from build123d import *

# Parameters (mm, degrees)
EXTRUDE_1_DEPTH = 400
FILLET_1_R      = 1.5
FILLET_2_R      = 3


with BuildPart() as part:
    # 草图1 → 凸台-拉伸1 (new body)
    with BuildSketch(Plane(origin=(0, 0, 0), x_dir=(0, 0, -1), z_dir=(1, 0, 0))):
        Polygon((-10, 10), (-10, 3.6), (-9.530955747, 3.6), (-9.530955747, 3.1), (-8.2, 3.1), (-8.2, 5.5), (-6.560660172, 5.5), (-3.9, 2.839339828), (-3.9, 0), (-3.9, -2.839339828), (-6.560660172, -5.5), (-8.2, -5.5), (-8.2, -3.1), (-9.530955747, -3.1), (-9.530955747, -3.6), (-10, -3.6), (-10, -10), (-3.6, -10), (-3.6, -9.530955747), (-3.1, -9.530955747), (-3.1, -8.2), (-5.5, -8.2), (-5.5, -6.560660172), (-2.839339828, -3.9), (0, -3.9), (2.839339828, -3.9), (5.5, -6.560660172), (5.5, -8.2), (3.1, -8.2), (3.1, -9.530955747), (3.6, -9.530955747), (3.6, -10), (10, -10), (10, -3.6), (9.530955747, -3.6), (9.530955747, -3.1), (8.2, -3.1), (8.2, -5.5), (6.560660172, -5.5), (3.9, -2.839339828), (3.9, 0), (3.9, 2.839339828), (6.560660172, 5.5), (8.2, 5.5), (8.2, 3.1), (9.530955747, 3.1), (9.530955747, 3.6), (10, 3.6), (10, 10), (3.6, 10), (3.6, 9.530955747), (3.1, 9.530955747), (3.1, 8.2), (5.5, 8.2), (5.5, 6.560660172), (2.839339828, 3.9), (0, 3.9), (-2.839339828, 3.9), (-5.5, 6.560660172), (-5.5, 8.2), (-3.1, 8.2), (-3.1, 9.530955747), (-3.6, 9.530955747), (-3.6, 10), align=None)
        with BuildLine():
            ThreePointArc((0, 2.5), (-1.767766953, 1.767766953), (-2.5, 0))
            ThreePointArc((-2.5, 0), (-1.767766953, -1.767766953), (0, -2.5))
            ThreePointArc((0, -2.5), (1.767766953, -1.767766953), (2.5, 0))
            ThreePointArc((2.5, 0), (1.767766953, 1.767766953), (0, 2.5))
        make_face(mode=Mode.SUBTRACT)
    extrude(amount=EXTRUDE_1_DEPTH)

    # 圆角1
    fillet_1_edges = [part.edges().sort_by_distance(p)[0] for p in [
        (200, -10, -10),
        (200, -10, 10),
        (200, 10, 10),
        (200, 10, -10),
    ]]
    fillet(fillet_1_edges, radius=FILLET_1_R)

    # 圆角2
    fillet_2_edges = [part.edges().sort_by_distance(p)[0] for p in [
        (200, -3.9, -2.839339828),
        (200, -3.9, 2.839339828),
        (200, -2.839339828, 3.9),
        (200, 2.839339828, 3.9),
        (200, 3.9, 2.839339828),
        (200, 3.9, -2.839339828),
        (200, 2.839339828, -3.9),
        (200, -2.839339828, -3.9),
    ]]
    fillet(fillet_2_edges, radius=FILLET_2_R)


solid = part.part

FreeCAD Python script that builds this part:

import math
import FreeCAD as App
import Part
import Sketcher

V = App.Vector


def edges_at(feature, points):
    """Names of the edges that pass closest to the given points."""
    edges = feature.Shape.Edges
    near = lambda p: min(range(len(edges)), key=lambda i: edges[i].distToShape(Part.Vertex(*p))[0])
    return sorted({f"Edge{near(p) + 1}" for p in points})

doc = App.newDocument("Part")
body = doc.addObject("PartDesign::Body", "Body")

# Sketch on YZ plane
sketch1 = body.newObject("Sketcher::SketchObject", "Sketch")
sketch1.AttachmentSupport = (doc.getObject("YZ_Plane"), [""])
sketch1.MapMode = "FlatFace"
sketch1.addGeometry(Part.LineSegment(V(10, 10, 0), V(3.6, 10, 0)), False)
sketch1.addGeometry(Part.LineSegment(V(3.6, 10, 0), V(3.6, 9.530956, 0)), False)
sketch1.addGeometry(Part.LineSegment(V(3.6, 9.530956, 0), V(3.1, 9.530956, 0)), False)
sketch1.addGeometry(Part.LineSegment(V(3.1, 9.530956, 0), V(3.1, 8.2, 0)), False)
sketch1.addGeometry(Part.LineSegment(V(3.1, 8.2, 0), V(5.5, 8.2, 0)), False)
sketch1.addGeometry(Part.LineSegment(V(5.5, 8.2, 0), V(5.5, 6.56066, 0)), False)
sketch1.addGeometry(Part.LineSegment(V(5.5, 6.56066, 0), V(2.83934, 3.9, 0)), False)
sketch1.addGeometry(Part.LineSegment(V(2.83934, 3.9, 0), V(-2.83934, 3.9, 0)), False)
sketch1.addGeometry(Part.LineSegment(V(-2.83934, 3.9, 0), V(-5.5, 6.56066, 0)), False)
sketch1.addGeometry(Part.LineSegment(V(-5.5, 6.56066, 0), V(-5.5, 8.2, 0)), False)
sketch1.addGeometry(Part.LineSegment(V(-5.5, 8.2, 0), V(-3.1, 8.2, 0)), False)
sketch1.addGeometry(Part.LineSegment(V(-3.1, 8.2, 0), V(-3.1, 9.530956, 0)), False)
sketch1.addGeometry(Part.LineSegment(V(-3.1, 9.530956, 0), V(-3.6, 9.530956, 0)), False)
sketch1.addGeometry(Part.LineSegment(V(-3.6, 9.530956, 0), V(-3.6, 10, 0)), False)
sketch1.addGeometry(Part.LineSegment(V(-3.6, 10, 0), V(-10, 10, 0)), False)
sketch1.addGeometry(Part.LineSegment(V(-10, 10, 0), V(-10, 3.6, 0)), False)
sketch1.addGeometry(Part.LineSegment(V(-10, 3.6, 0), V(-9.530956, 3.6, 0)), False)
sketch1.addGeometry(Part.LineSegment(V(-9.530956, 3.6, 0), V(-9.530956, 3.1, 0)), False)
sketch1.addGeometry(Part.LineSegment(V(-9.530956, 3.1, 0), V(-8.2, 3.1, 0)), False)
sketch1.addGeometry(Part.LineSegment(V(-8.2, 3.1, 0), V(-8.2, 5.5, 0)), False)
sketch1.addGeometry(Part.LineSegment(V(-8.2, 5.5, 0), V(-6.56066, 5.5, 0)), False)
sketch1.addGeometry(Part.LineSegment(V(-6.56066, 5.5, 0), V(-3.9, 2.83934, 0)), False)
sketch1.addGeometry(Part.LineSegment(V(-3.9, 2.83934, 0), V(-3.9, -2.83934, 0)), False)
sketch1.addGeometry(Part.LineSegment(V(-3.9, -2.83934, 0), V(-6.56066, -5.5, 0)), False)
sketch1.addGeometry(Part.LineSegment(V(-6.56066, -5.5, 0), V(-8.2, -5.5, 0)), False)
sketch1.addGeometry(Part.LineSegment(V(-8.2, -5.5, 0), V(-8.2, -3.1, 0)), False)
sketch1.addGeometry(Part.LineSegment(V(-8.2, -3.1, 0), V(-9.530956, -3.1, 0)), False)
sketch1.addGeometry(Part.LineSegment(V(-9.530956, -3.1, 0), V(-9.530956, -3.6, 0)), False)
sketch1.addGeometry(Part.LineSegment(V(-9.530956, -3.6, 0), V(-10, -3.6, 0)), False)
sketch1.addGeometry(Part.LineSegment(V(-10, -3.6, 0), V(-10, -10, 0)), False)
sketch1.addGeometry(Part.LineSegment(V(-10, -10, 0), V(-3.6, -10, 0)), False)
sketch1.addGeometry(Part.LineSegment(V(-3.6, -10, 0), V(-3.6, -9.530956, 0)), False)
sketch1.addGeometry(Part.LineSegment(V(-3.6, -9.530956, 0), V(-3.1, -9.530956, 0)), False)
sketch1.addGeometry(Part.LineSegment(V(-3.1, -9.530956, 0), V(-3.1, -8.2, 0)), False)
sketch1.addGeometry(Part.LineSegment(V(-3.1, -8.2, 0), V(-5.5, -8.2, 0)), False)
sketch1.addGeometry(Part.LineSegment(V(-5.5, -8.2, 0), V(-5.5, -6.56066, 0)), False)
sketch1.addGeometry(Part.LineSegment(V(-5.5, -6.56066, 0), V(-2.83934, -3.9, 0)), False)
sketch1.addGeometry(Part.LineSegment(V(-2.83934, -3.9, 0), V(2.83934, -3.9, 0)), False)
sketch1.addGeometry(Part.LineSegment(V(2.83934, -3.9, 0), V(5.5, -6.56066, 0)), False)
sketch1.addGeometry(Part.LineSegment(V(5.5, -6.56066, 0), V(5.5, -8.2, 0)), False)
sketch1.addGeometry(Part.LineSegment(V(5.5, -8.2, 0), V(3.1, -8.2, 0)), False)
sketch1.addGeometry(Part.LineSegment(V(3.1, -8.2, 0), V(3.1, -9.530956, 0)), False)
sketch1.addGeometry(Part.LineSegment(V(3.1, -9.530956, 0), V(3.6, -9.530956, 0)), False)
sketch1.addGeometry(Part.LineSegment(V(3.6, -9.530956, 0), V(3.6, -10, 0)), False)
sketch1.addGeometry(Part.LineSegment(V(3.6, -10, 0), V(10, -10, 0)), False)
sketch1.addGeometry(Part.LineSegment(V(10, -10, 0), V(10, -3.6, 0)), False)
sketch1.addGeometry(Part.LineSegment(V(10, -3.6, 0), V(9.530956, -3.6, 0)), False)
sketch1.addGeometry(Part.LineSegment(V(9.530956, -3.6, 0), V(9.530956, -3.1, 0)), False)
sketch1.addGeometry(Part.LineSegment(V(9.530956, -3.1, 0), V(8.2, -3.1, 0)), False)
sketch1.addGeometry(Part.LineSegment(V(8.2, -3.1, 0), V(8.2, -5.5, 0)), False)
sketch1.addGeometry(Part.LineSegment(V(8.2, -5.5, 0), V(6.56066, -5.5, 0)), False)
sketch1.addGeometry(Part.LineSegment(V(6.56066, -5.5, 0), V(3.9, -2.83934, 0)), False)
sketch1.addGeometry(Part.LineSegment(V(3.9, -2.83934, 0), V(3.9, 2.83934, 0)), False)
sketch1.addGeometry(Part.LineSegment(V(3.9, 2.83934, 0), V(6.56066, 5.5, 0)), False)
sketch1.addGeometry(Part.LineSegment(V(6.56066, 5.5, 0), V(8.2, 5.5, 0)), False)
sketch1.addGeometry(Part.LineSegment(V(8.2, 5.5, 0), V(8.2, 3.1, 0)), False)
sketch1.addGeometry(Part.LineSegment(V(8.2, 3.1, 0), V(9.530956, 3.1, 0)), False)
sketch1.addGeometry(Part.LineSegment(V(9.530956, 3.1, 0), V(9.530956, 3.6, 0)), False)
sketch1.addGeometry(Part.LineSegment(V(9.530956, 3.6, 0), V(10, 3.6, 0)), False)
sketch1.addGeometry(Part.LineSegment(V(10, 3.6, 0), V(10, 10, 0)), False)
sketch1.addGeometry(Part.ArcOfCircle(Part.Circle(V(0, 0, 0), V(0, 0, 1), 2.5), math.radians(0), math.radians(90)), False)
sketch1.addGeometry(Part.ArcOfCircle(Part.Circle(V(0, 0, 0), V(0, 0, 1), 2.5), math.radians(-90), math.radians(0)), False)
sketch1.addGeometry(Part.ArcOfCircle(Part.Circle(V(0, 0, 0), V(0, 0, 1), 2.5), math.radians(180), math.radians(270)), False)
sketch1.addGeometry(Part.ArcOfCircle(Part.Circle(V(0, 0, 0), V(0, 0, 1), 2.5), math.radians(90), math.radians(180)), False)
sketch1.addConstraint(Sketcher.Constraint("Coincident", 0, 2, 1, 1))
sketch1.addConstraint(Sketcher.Constraint("Coincident", 1, 2, 2, 1))
sketch1.addConstraint(Sketcher.Constraint("Coincident", 2, 2, 3, 1))
sketch1.addConstraint(Sketcher.Constraint("Coincident", 3, 2, 4, 1))
sketch1.addConstraint(Sketcher.Constraint("Coincident", 4, 2, 5, 1))
sketch1.addConstraint(Sketcher.Constraint("Coincident", 5, 2, 6, 1))
sketch1.addConstraint(Sketcher.Constraint("Coincident", 6, 2, 7, 1))
sketch1.addConstraint(Sketcher.Constraint("Coincident", 7, 2, 8, 1))
sketch1.addConstraint(Sketcher.Constraint("Coincident", 8, 2, 9, 1))
sketch1.addConstraint(Sketcher.Constraint("Coincident", 9, 2, 10, 1))
sketch1.addConstraint(Sketcher.Constraint("Coincident", 10, 2, 11, 1))
sketch1.addConstraint(Sketcher.Constraint("Coincident", 11, 2, 12, 1))
sketch1.addConstraint(Sketcher.Constraint("Coincident", 12, 2, 13, 1))
sketch1.addConstraint(Sketcher.Constraint("Coincident", 13, 2, 14, 1))
sketch1.addConstraint(Sketcher.Constraint("Coincident", 14, 2, 15, 1))
sketch1.addConstraint(Sketcher.Constraint("Coincident", 15, 2, 16, 1))
sketch1.addConstraint(Sketcher.Constraint("Coincident", 16, 2, 17, 1))
sketch1.addConstraint(Sketcher.Constraint("Coincident", 17, 2, 18, 1))
sketch1.addConstraint(Sketcher.Constraint("Coincident", 18, 2, 19, 1))
sketch1.addConstraint(Sketcher.Constraint("Coincident", 19, 2, 20, 1))
sketch1.addConstraint(Sketcher.Constraint("Coincident", 20, 2, 21, 1))
sketch1.addConstraint(Sketcher.Constraint("Coincident", 21, 2, 22, 1))
sketch1.addConstraint(Sketcher.Constraint("Coincident", 22, 2, 23, 1))
sketch1.addConstraint(Sketcher.Constraint("Coincident", 23, 2, 24, 1))
sketch1.addConstraint(Sketcher.Constraint("Coincident", 24, 2, 25, 1))
sketch1.addConstraint(Sketcher.Constraint("Coincident", 25, 2, 26, 1))
sketch1.addConstraint(Sketcher.Constraint("Coincident", 26, 2, 27, 1))
sketch1.addConstraint(Sketcher.Constraint("Coincident", 27, 2, 28, 1))
sketch1.addConstraint(Sketcher.Constraint("Coincident", 28, 2, 29, 1))
sketch1.addConstraint(Sketcher.Constraint("Coincident", 29, 2, 30, 1))
sketch1.addConstraint(Sketcher.Constraint("Coincident", 30, 2, 31, 1))
sketch1.addConstraint(Sketcher.Constraint("Coincident", 31, 2, 32, 1))
sketch1.addConstraint(Sketcher.Constraint("Coincident", 32, 2, 33, 1))
sketch1.addConstraint(Sketcher.Constraint("Coincident", 33, 2, 34, 1))
sketch1.addConstraint(Sketcher.Constraint("Coincident", 34, 2, 35, 1))
sketch1.addConstraint(Sketcher.Constraint("Coincident", 35, 2, 36, 1))
sketch1.addConstraint(Sketcher.Constraint("Coincident", 36, 2, 37, 1))
sketch1.addConstraint(Sketcher.Constraint("Coincident", 37, 2, 38, 1))
sketch1.addConstraint(Sketcher.Constraint("Coincident", 38, 2, 39, 1))
sketch1.addConstraint(Sketcher.Constraint("Coincident", 39, 2, 40, 1))
sketch1.addConstraint(Sketcher.Constraint("Coincident", 40, 2, 41, 1))
sketch1.addConstraint(Sketcher.Constraint("Coincident", 41, 2, 42, 1))
sketch1.addConstraint(Sketcher.Constraint("Coincident", 42, 2, 43, 1))
sketch1.addConstraint(Sketcher.Constraint("Coincident", 43, 2, 44, 1))
sketch1.addConstraint(Sketcher.Constraint("Coincident", 44, 2, 45, 1))
sketch1.addConstraint(Sketcher.Constraint("Coincident", 45, 2, 46, 1))
sketch1.addConstraint(Sketcher.Constraint("Coincident", 46, 2, 47, 1))
sketch1.addConstraint(Sketcher.Constraint("Coincident", 47, 2, 48, 1))
sketch1.addConstraint(Sketcher.Constraint("Coincident", 48, 2, 49, 1))
sketch1.addConstraint(Sketcher.Constraint("Coincident", 49, 2, 50, 1))
sketch1.addConstraint(Sketcher.Constraint("Coincident", 50, 2, 51, 1))
sketch1.addConstraint(Sketcher.Constraint("Coincident", 51, 2, 52, 1))
sketch1.addConstraint(Sketcher.Constraint("Coincident", 52, 2, 53, 1))
sketch1.addConstraint(Sketcher.Constraint("Coincident", 53, 2, 54, 1))
sketch1.addConstraint(Sketcher.Constraint("Coincident", 54, 2, 55, 1))
sketch1.addConstraint(Sketcher.Constraint("Coincident", 55, 2, 56, 1))
sketch1.addConstraint(Sketcher.Constraint("Coincident", 56, 2, 57, 1))
sketch1.addConstraint(Sketcher.Constraint("Coincident", 57, 2, 58, 1))
sketch1.addConstraint(Sketcher.Constraint("Coincident", 58, 2, 59, 1))
sketch1.addConstraint(Sketcher.Constraint("Coincident", 59, 2, 0, 1))
sketch1.addConstraint(Sketcher.Constraint("Tangent", 60, 1, 61, 2))
sketch1.addConstraint(Sketcher.Constraint("Tangent", 61, 1, 62, 2))
sketch1.addConstraint(Sketcher.Constraint("Tangent", 62, 1, 63, 2))
sketch1.addConstraint(Sketcher.Constraint("Tangent", 63, 1, 60, 2))
sketch1.addConstraint(Sketcher.Constraint("Horizontal", 0))
sketch1.addConstraint(Sketcher.Constraint("Vertical", 1))
sketch1.addConstraint(Sketcher.Constraint("Horizontal", 2))
sketch1.addConstraint(Sketcher.Constraint("Vertical", 3))
sketch1.addConstraint(Sketcher.Constraint("Horizontal", 4))
sketch1.addConstraint(Sketcher.Constraint("Vertical", 5))
sketch1.addConstraint(Sketcher.Constraint("Horizontal", 7))
sketch1.addConstraint(Sketcher.Constraint("Vertical", 9))
sketch1.addConstraint(Sketcher.Constraint("Horizontal", 10))
sketch1.addConstraint(Sketcher.Constraint("Vertical", 11))
sketch1.addConstraint(Sketcher.Constraint("Horizontal", 12))
sketch1.addConstraint(Sketcher.Constraint("Vertical", 13))
sketch1.addConstraint(Sketcher.Constraint("Horizontal", 14))
sketch1.addConstraint(Sketcher.Constraint("Vertical", 15))
sketch1.addConstraint(Sketcher.Constraint("Horizontal", 16))
sketch1.addConstraint(Sketcher.Constraint("Vertical", 17))
sketch1.addConstraint(Sketcher.Constraint("Horizontal", 18))
sketch1.addConstraint(Sketcher.Constraint("Vertical", 19))
sketch1.addConstraint(Sketcher.Constraint("Horizontal", 20))
sketch1.addConstraint(Sketcher.Constraint("Vertical", 22))
sketch1.addConstraint(Sketcher.Constraint("Horizontal", 24))
sketch1.addConstraint(Sketcher.Constraint("Vertical", 25))
sketch1.addConstraint(Sketcher.Constraint("Horizontal", 26))
sketch1.addConstraint(Sketcher.Constraint("Vertical", 27))
sketch1.addConstraint(Sketcher.Constraint("Horizontal", 28))
sketch1.addConstraint(Sketcher.Constraint("Vertical", 29))
sketch1.addConstraint(Sketcher.Constraint("Horizontal", 30))
sketch1.addConstraint(Sketcher.Constraint("Vertical", 31))
sketch1.addConstraint(Sketcher.Constraint("Horizontal", 32))
sketch1.addConstraint(Sketcher.Constraint("Vertical", 33))
sketch1.addConstraint(Sketcher.Constraint("Horizontal", 34))
sketch1.addConstraint(Sketcher.Constraint("Vertical", 35))
sketch1.addConstraint(Sketcher.Constraint("Horizontal", 37))
sketch1.addConstraint(Sketcher.Constraint("Vertical", 39))
sketch1.addConstraint(Sketcher.Constraint("Horizontal", 40))
sketch1.addConstraint(Sketcher.Constraint("Vertical", 41))
sketch1.addConstraint(Sketcher.Constraint("Horizontal", 42))
sketch1.addConstraint(Sketcher.Constraint("Vertical", 43))
sketch1.addConstraint(Sketcher.Constraint("Horizontal", 44))
sketch1.addConstraint(Sketcher.Constraint("Vertical", 45))
sketch1.addConstraint(Sketcher.Constraint("Horizontal", 46))
sketch1.addConstraint(Sketcher.Constraint("Vertical", 47))
sketch1.addConstraint(Sketcher.Constraint("Horizontal", 48))
sketch1.addConstraint(Sketcher.Constraint("Vertical", 49))
sketch1.addConstraint(Sketcher.Constraint("Horizontal", 50))
sketch1.addConstraint(Sketcher.Constraint("Vertical", 52))
sketch1.addConstraint(Sketcher.Constraint("Horizontal", 54))
sketch1.addConstraint(Sketcher.Constraint("Vertical", 55))
sketch1.addConstraint(Sketcher.Constraint("Horizontal", 56))
sketch1.addConstraint(Sketcher.Constraint("Vertical", 57))
sketch1.addConstraint(Sketcher.Constraint("Horizontal", 58))
sketch1.addConstraint(Sketcher.Constraint("Vertical", 59))
sketch1.addConstraint(Sketcher.Constraint("Coincident", 60, 3, -1, 1))
sketch1.addConstraint(Sketcher.Constraint("Equal", 60, 61))
sketch1.addConstraint(Sketcher.Constraint("Symmetric", 0, 2, 30, 2, -1, 1))
sketch1.addConstraint(Sketcher.Constraint("Symmetric", 2, 2, 32, 2, -1, 1))
sketch1.addConstraint(Sketcher.Constraint("Symmetric", 4, 2, 34, 2, -1, 1))
sketch1.addConstraint(Sketcher.Constraint("Symmetric", 6, 2, 36, 2, -1, 1))
sketch1.addConstraint(Sketcher.Constraint("Symmetric", 8, 2, 38, 2, -1, 1))
sketch1.addConstraint(Sketcher.Constraint("Symmetric", 10, 2, 40, 2, -1, 1))
sketch1.addConstraint(Sketcher.Constraint("Symmetric", 12, 2, 42, 2, -1, 1))
sketch1.addConstraint(Sketcher.Constraint("Symmetric", 14, 2, 44, 2, -1, 1))
sketch1.addConstraint(Sketcher.Constraint("Symmetric", 16, 2, 46, 2, -1, 1))
sketch1.addConstraint(Sketcher.Constraint("Symmetric", 18, 2, 48, 2, -1, 1))
sketch1.addConstraint(Sketcher.Constraint("Symmetric", 20, 2, 50, 2, -1, 1))
sketch1.addConstraint(Sketcher.Constraint("Symmetric", 21, 2, 51, 2, -1, 1))
sketch1.addConstraint(Sketcher.Constraint("Symmetric", 23, 2, 53, 2, -1, 1))
sketch1.addConstraint(Sketcher.Constraint("Symmetric", 25, 2, 55, 2, -1, 1))
sketch1.addConstraint(Sketcher.Constraint("Symmetric", 27, 2, 57, 2, -1, 1))
sketch1.addConstraint(Sketcher.Constraint("Symmetric", 5, 2, 8, 2, -2))
sketch1.addConstraint(Sketcher.Constraint("Symmetric", 3, 2, 10, 2, -2))
sketch1.addConstraint(Sketcher.Constraint("Symmetric", 1, 2, 12, 2, -2))
sketch1.addConstraint(Sketcher.Constraint("Symmetric", 29, 2, 44, 2, -2))
sketch1.addConstraint(Sketcher.Constraint("Symmetric", 27, 2, 46, 2, -2))
sketch1.addConstraint(Sketcher.Constraint("Symmetric", 25, 2, 48, 2, -2))
sketch1.addConstraint(Sketcher.Constraint("Symmetric", 23, 2, 50, 2, -2))
sketch1.addConstraint(Sketcher.Constraint("PointOnObject", 60, 1, -1))
sketch1.addConstraint(Sketcher.Constraint("PointOnObject", 61, 1, -2))
sketch1.addConstraint(Sketcher.Constraint("PointOnObject", 62, 1, -1))
sketch1.addConstraint(Sketcher.Constraint("PointOnObject", 63, 1, -2))
sketch1.addConstraint(Sketcher.Constraint("Perpendicular", 6, 8))
sketch1.addConstraint(Sketcher.Constraint("Parallel", 8, 21))
sketch1.addConstraint(Sketcher.Constraint("Perpendicular", 21, 23))
sketch1.addConstraint(Sketcher.Constraint("Parallel", 23, 36))
sketch1.addConstraint(Sketcher.Constraint("Perpendicular", 36, 38))
sketch1.addConstraint(Sketcher.Constraint("Perpendicular", 51, 53))
sketch1.addConstraint(Sketcher.Constraint("Horizontal", 22, 2, 51, 2))
sketch1.addConstraint(Sketcher.Constraint("Vertical", 45, 2, 58, 2))
sketch1.addConstraint(Sketcher.Constraint("Equal", 58, 1))
sketch1.addConstraint(Sketcher.Constraint("Equal", 56, 3))
sketch1.addConstraint(Sketcher.Constraint("Equal", 54, 5))
sketch1.addConstraint(Sketcher.Constraint("Equal", 44, 15))
sketch1.addConstraint(Sketcher.Constraint("Equal", 42, 17))
sketch1.addConstraint(Sketcher.Constraint("Equal", 40, 19))
sketch1.addConstraint(Sketcher.Constraint("Equal", 37, 22))
sketch1.addConstraint(Sketcher.Constraint("Equal", 8, 21))
sketch1.addConstraint(Sketcher.Constraint("Radius", 60, 2.5))
sketch1.addConstraint(Sketcher.Constraint("DistanceX", 0, 2, 0, 1, 6.4))
sketch1.addConstraint(Sketcher.Constraint("DistanceX", 2, 2, 2, 1, 0.5))
sketch1.addConstraint(Sketcher.Constraint("DistanceX", 4, 1, 4, 2, 2.4))
sketch1.addConstraint(Sketcher.Constraint("DistanceY", -1, 1, 0, 2, 10.0))
sketch1.addConstraint(Sketcher.Constraint("DistanceY", -1, 1, 3, 2, 8.2))
sketch1.addConstraint(Sketcher.Constraint("DistanceY", -1, 1, 6, 2, 3.9))
sketch1.addConstraint(Sketcher.Constraint("DistanceX", 7, 2, 7, 1, 5.67868))
sketch1.addConstraint(Sketcher.Constraint("DistanceX", 16, 1, 16, 2, 0.469044))
pad1 = body.newObject("PartDesign::Pad", "Pad")
pad1.Profile = sketch1
pad1.Length = 400
doc.recompute()

fillet = body.newObject("PartDesign::Fillet", "Fillet")
fillet.Base = (pad1, edges_at(pad1, [
    (200, -10, -10),
    (200, -10, 10),
    (200, 10, 10),
    (200, 10, -10),
]))
fillet.Radius = 1.5
doc.recompute()

fillet2 = body.newObject("PartDesign::Fillet", "Fillet001")
fillet2.Base = (fillet, edges_at(fillet, [
    (200, -3.9, -2.839),
    (200, -3.9, 2.839),
    (200, -2.839, 3.9),
    (200, 2.839, 3.9),
    (200, 3.9, 2.839),
    (200, 3.9, -2.839),
    (200, 2.839, -3.9),
    (200, -2.839, -3.9),
]))
fillet2.Radius = 3

doc.recompute()
